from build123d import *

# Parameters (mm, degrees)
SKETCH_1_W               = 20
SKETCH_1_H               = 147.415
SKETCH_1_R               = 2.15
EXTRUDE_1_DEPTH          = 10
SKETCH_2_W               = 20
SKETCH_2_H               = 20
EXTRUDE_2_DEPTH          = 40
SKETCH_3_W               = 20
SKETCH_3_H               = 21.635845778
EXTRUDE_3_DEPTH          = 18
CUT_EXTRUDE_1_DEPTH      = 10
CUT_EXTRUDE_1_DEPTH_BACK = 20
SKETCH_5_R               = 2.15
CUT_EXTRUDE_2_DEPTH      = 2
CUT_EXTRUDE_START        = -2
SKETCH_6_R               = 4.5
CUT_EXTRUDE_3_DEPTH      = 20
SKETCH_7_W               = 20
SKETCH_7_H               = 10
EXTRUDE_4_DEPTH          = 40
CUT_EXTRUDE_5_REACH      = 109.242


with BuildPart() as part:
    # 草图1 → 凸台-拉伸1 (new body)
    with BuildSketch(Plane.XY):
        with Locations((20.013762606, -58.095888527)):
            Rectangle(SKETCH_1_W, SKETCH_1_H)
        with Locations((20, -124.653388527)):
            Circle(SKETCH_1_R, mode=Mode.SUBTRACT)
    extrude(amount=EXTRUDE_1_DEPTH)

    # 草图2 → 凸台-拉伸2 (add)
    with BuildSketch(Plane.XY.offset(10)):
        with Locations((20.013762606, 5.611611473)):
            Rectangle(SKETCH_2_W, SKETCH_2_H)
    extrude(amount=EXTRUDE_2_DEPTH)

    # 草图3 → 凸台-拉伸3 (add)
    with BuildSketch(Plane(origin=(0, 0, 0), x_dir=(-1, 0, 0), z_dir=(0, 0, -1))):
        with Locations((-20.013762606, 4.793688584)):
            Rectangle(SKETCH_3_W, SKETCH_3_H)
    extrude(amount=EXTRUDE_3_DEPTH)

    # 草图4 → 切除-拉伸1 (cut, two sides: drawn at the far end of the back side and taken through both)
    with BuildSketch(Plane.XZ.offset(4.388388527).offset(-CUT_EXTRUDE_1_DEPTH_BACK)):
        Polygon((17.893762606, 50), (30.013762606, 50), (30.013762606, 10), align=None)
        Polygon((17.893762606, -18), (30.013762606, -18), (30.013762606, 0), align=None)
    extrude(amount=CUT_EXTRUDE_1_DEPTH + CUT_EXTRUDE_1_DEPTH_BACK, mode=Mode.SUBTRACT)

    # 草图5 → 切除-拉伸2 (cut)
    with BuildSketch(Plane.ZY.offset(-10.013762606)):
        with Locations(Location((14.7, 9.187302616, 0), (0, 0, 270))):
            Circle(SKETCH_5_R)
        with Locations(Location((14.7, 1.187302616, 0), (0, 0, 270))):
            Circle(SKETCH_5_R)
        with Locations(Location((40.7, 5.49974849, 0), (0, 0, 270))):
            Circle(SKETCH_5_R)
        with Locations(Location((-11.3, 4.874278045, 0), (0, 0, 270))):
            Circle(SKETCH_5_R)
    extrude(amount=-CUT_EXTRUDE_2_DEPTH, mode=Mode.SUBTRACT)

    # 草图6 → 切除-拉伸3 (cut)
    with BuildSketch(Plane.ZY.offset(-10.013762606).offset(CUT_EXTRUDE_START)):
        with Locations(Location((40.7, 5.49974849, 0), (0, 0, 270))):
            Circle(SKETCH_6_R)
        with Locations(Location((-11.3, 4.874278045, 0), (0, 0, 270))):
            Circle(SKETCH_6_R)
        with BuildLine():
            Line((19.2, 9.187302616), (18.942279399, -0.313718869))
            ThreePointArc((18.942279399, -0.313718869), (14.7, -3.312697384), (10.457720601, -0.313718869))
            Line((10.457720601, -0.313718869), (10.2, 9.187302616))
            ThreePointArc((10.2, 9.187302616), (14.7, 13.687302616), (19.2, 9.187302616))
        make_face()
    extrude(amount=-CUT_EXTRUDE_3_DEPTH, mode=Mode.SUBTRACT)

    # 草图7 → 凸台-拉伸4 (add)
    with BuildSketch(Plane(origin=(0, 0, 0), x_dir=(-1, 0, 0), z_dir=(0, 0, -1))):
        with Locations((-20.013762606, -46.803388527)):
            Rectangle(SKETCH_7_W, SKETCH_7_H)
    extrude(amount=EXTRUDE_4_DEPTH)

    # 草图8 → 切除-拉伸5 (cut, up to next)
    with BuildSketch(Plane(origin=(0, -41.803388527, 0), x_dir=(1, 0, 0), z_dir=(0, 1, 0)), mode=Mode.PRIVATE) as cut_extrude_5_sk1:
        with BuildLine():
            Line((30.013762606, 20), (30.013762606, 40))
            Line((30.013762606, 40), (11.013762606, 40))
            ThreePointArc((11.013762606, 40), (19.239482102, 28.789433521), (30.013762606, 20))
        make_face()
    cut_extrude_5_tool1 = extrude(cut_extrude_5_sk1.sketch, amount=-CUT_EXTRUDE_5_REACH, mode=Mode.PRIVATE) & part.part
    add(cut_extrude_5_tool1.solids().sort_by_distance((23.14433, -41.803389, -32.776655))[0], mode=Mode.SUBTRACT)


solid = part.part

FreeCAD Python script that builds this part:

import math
import FreeCAD as App
import Part
import Sketcher


def add_polygon(sketch, points):
    """Adds a closed chain of lines whose ends are joined by coincident constraints."""
    first, n = sketch.GeometryCount, len(points)
    for a, b in zip(points, points[1:] + points[:1]):
        sketch.addGeometry(Part.LineSegment(App.Vector(*a, 0), App.Vector(*b, 0)), False)
    for i in range(n):
        sketch.addConstraint(Sketcher.Constraint("Coincident", first + i, 2, first + (i + 1) % n, 1))

doc = App.newDocument("Part")
params = doc.addObject("Spreadsheet::Sheet", "Params")
for row, (alias, value) in enumerate([
    ("sketch1_diameter", "4.3 mm"),
    ("sketch1_width", "20 mm"),
    ("pad1_length", "10 mm"),
    ("sketch2_width", "20 mm"),
    ("pad2_length", "40 mm"),
    ("sketch3_width", "20 mm"),
    ("pad3_length", "18 mm"),
    ("sketch4_height", "40 mm"),
    ("sketch4_height2", "18 mm"),
    ("sketch4_width", "12.12 mm"),
    ("sketch5_diameter", "4.3 mm"),
    ("pocket2_length", "2 mm"),
    ("sketch6_diameter", "9 mm"),
    ("pocket3_length", "20 mm"),
    ("sketch7_width", "20 mm"),
    ("sketch7_height", "10 mm"),
    ("pad4_length", "40 mm"),
    ("sketch8_radius", "55 mm"),
    ("sketch8_width", "19 mm"),
    ("sketch8_height", "20 mm"),
], start=1):
    params.set(f"A{row}", alias)
    params.set(f"B{row}", "=" + value)
    params.setAlias(f"B{row}", alias)

body = doc.addObject("PartDesign::Body", "Body")

sketch1 = body.newObject("Sketcher::SketchObject", "Sketch")
sketch1.AttachmentSupport = (doc.getObject("XY_Plane"), [""])
sketch1.MapMode = "FlatFace"
add_polygon(sketch1, [(10.013763, 15.611611), (10.013763, -131.803389), (30.013763, -131.803389), (30.013763, 15.611611)])
sketch1.addGeometry(Part.Circle(App.Vector(20, -124.653389, 0), App.Vector(0, 0, 1), 2.15), False)
sketch1.addConstraint([
    Sketcher.Constraint("Vertical", 0),
    Sketcher.Constraint("Horizontal", 1),
    Sketcher.Constraint("Vertical", 2),
    Sketcher.Constraint("Horizontal", 3),
    Sketcher.Constraint("Diameter", 4, 4.3),
    Sketcher.Constraint("DistanceX", 1, 1, 1, 2, 20.0),
    Sketcher.Constraint("DistanceX", -1, 1, 4, 3, 20.0),
    Sketcher.Constraint("DistanceY", 0, 2, 0, 1, 147.415),
    Sketcher.Constraint("DistanceY", 0, 2, 4, 3, 7.15),
    Sketcher.Constraint("DistanceY", 4, 3, -1, 1, 124.653389),
    Sketcher.Constraint("DistanceX", -1, 1, 0, 2, 10.013763),
])
sketch1.setExpression("Constraints[8]", "Params.sketch1_diameter")
sketch1.setExpression("Constraints[9]", "Params.sketch1_width")
pad1 = body.newObject("PartDesign::Pad", "Pad")
pad1.Profile = sketch1
pad1.setExpression("Length", "Params.pad1_length")

sketch2 = body.newObject("Sketcher::SketchObject", "Sketch001")
sketch2.AttachmentSupport = (doc.getObject("XY_Plane"), [""])
sketch2.MapMode = "FlatFace"
sketch2.AttachmentOffset = App.Placement(App.Vector(0, 0, 10), App.Rotation())
add_polygon(sketch2, [(10.013763, 15.611611), (10.013763, -4.388389), (30.013763, -4.388389), (30.013763, 15.611611)])
sketch2.addConstraint([
    Sketcher.Constraint("Vertical", 0),
    Sketcher.Constraint("Horizontal", 1),
    Sketcher.Constraint("Vertical", 2),
    Sketcher.Constraint("Horizontal", 3),
    Sketcher.Constraint("Equal", 3, 0),
    Sketcher.Constraint("DistanceX", 1, 1, 1, 2, 20.0),
    Sketcher.Constraint("DistanceY", 0, 2, -1, 1, 4.388389),
    Sketcher.Constraint("DistanceX", -1, 1, 0, 2, 10.013763),
])
sketch2.setExpression("Constraints[9]", "Params.sketch2_width")
pad2 = body.newObject("PartDesign::Pad", "Pad001")
pad2.Profile = sketch2
pad2.setExpression("Length", "Params.pad2_length")

sketch3 = body.newObject("Sketcher::SketchObject", "Sketch002")
sketch3.AttachmentSupport = (doc.getObject("XY_Plane"), [""])
sketch3.MapMode = "FlatFace"
add_polygon(sketch3, [(30.013763, 15.611611), (30.013763, -6.024234), (10.013763, -6.024234), (10.013763, 15.611611)])
sketch3.addConstraint([
    Sketcher.Constraint("Vertical", 0),
    Sketcher.Constraint("Horizontal", 1),
    Sketcher.Constraint("Vertical", 2),
    Sketcher.Constraint("Horizontal", 3),
    Sketcher.Constraint("DistanceX", 1, 2, 1, 1, 20.0),
    Sketcher.Constraint("DistanceY", 0, 2, 0, 1, 21.635846),
    Sketcher.Constraint("DistanceY", -1, 1, 2, 2, 15.611611),
    Sketcher.Constraint("DistanceX", -1, 1, 0, 2, 30.013763),
])
sketch3.setExpression("Constraints[8]", "Params.sketch3_width")
pad3 = body.newObject("PartDesign::Pad", "Pad002")
pad3.Profile = sketch3
pad3.setExpression("Length", "Params.pad3_length")
pad3.Reversed = True

sketch4 = body.newObject("Sketcher::SketchObject", "Sketch003")
sketch4.AttachmentSupport = (doc.getObject("XZ_Plane"), [""])
sketch4.MapMode = "FlatFace"
sketch4.AttachmentOffset = App.Placement(App.Vector(0, 0, 4.388389), App.Rotation())
add_polygon(sketch4, [(30.013763, 50), (17.893763, 50), (30.013763, 10)])
add_polygon(sketch4, [(17.893763, -18), (30.013763, -18), (30.013763, 0)])
sketch4.addConstraint([
    Sketcher.Constraint("Horizontal", 0),
    Sketcher.Constraint("Vertical", 2),
    Sketcher.Constraint("Horizontal", 3),
    Sketcher.Constraint("Vertical", 4),
    Sketcher.Constraint("PointOnObject", 4, 2, -1),
    Sketcher.Constraint("Vertical", 2, 2, 3, 2),
    Sketcher.Constraint("Vertical", 0, 2, 5, 2),
    Sketcher.Constraint("DistanceY", 2, 1, 2, 2, 40.0),
    Sketcher.Constraint("DistanceY", 4, 1, 4, 2, 18.0),
    Sketcher.Constraint("DistanceY", -1, 1, 0, 2, 50.0),
    Sketcher.Constraint("DistanceX", 0, 2, 0, 1, 12.12),
    Sketcher.Constraint("DistanceX", -1, 1, 0, 2, 17.893763),
])
sketch4.setExpression("Constraints[13]", "Params.sketch4_height")
sketch4.setExpression("Constraints[14]", "Params.sketch4_height2")
sketch4.setExpression("Constraints[16]", "Params.sketch4_width")
pocket1 = body.newObject("PartDesign::Pocket", "Pocket")
pocket1.Profile = sketch4
pocket1.Type = "ThroughAll"
pocket1.Midplane = True

sketch5 = body.newObject("Sketcher::SketchObject", "Sketch004")
sketch5.AttachmentSupport = (doc.getObject("YZ_Plane"), [""])
sketch5.MapMode = "FlatFace"
sketch5.AttachmentOffset = App.Placement(App.Vector(0, 0, 10.013763), App.Rotation())
sketch5.addGeometry([
    Part.Circle(App.Vector(9.187303, 14.7, 0), App.Vector(0, 0, 1), 2.15),
    Part.Circle(App.Vector(1.187303, 14.7, 0), App.Vector(0, 0, 1), 2.15),
    Part.Circle(App.Vector(5.499748, 40.7, 0), App.Vector(0, 0, 1), 2.15),
    Part.Circle(App.Vector(4.874278, -11.3, 0), App.Vector(0, 0, 1), 2.15),
], False)
sketch5.addConstraint([
    Sketcher.Constraint("Equal", 0, 1),
    Sketcher.Constraint("Equal", 1, 2),
    Sketcher.Constraint("Equal", 2, 3),
    Sketcher.Constraint("Horizontal", 0, 3, 1, 3),
    Sketcher.Constraint("Diameter", 0, 4.3),
    Sketcher.Constraint("DistanceX", 1, 3, 0, 3, 8.0),
    Sketcher.Constraint("DistanceY", 0, 3, 2, 3, 26.0),
    Sketcher.Constraint("DistanceY", 3, 3, 1, 3, 26.0),
    Sketcher.Constraint("DistanceY", -1, 1, 0, 3, 14.7),
    Sketcher.Constraint("DistanceX", -1, 1, 2, 3, 5.499748),
    Sketcher.Constraint("DistanceX", -1, 1, 3, 3, 4.874278),
    Sketcher.Constraint("DistanceX", -1, 1, 0, 3, 9.187303),
])
sketch5.setExpression("Constraints[4]", "Params.sketch5_diameter")
pocket2 = body.newObject("PartDesign::Pocket", "Pocket001")
pocket2.Profile = sketch5
pocket2.setExpression("Length", "Params.pocket2_length")
pocket2.Reversed = True

sketch6 = body.newObject("Sketcher::SketchObject", "Sketch005")
sketch6.AttachmentSupport = (doc.getObject("YZ_Plane"), [""])
sketch6.MapMode = "FlatFace"
sketch6.AttachmentOffset = App.Placement(App.Vector(0, 0, 12.013763), App.Rotation())
sketch6.addGeometry([
    Part.Circle(App.Vector(5.499748, 40.7, 0), App.Vector(0, 0, 1), 4.5),
    Part.Circle(App.Vector(4.874278, -11.3, 0), App.Vector(0, 0, 1), 4.5),
    Part.LineSegment(App.Vector(-0.313719, 18.942279, 0), App.Vector(9.187303, 19.2, 0)),
    Part.ArcOfCircle(Part.Circle(App.Vector(9.187303, 14.7, 0), App.Vector(0, 0, 1), 4.5), math.radians(-90), math.radians(90)),
    Part.LineSegment(App.Vector(9.187303, 10.2, 0), App.Vector(-0.313719, 10.457721, 0)),
    Part.ArcOfCircle(Part.Circle(App.Vector(1.187303, 14.7, 0), App.Vector(0, 0, 1), 4.5), math.radians(109.485016), math.radians(250.514984)),
], False)
sketch6.addConstraint([
    Sketcher.Constraint("Coincident", 2, 2, 3, 2),
    Sketcher.Constraint("Coincident", 3, 1, 4, 1),
    Sketcher.Constraint("Coincident", 4, 2, 5, 2),
    Sketcher.Constraint("Coincident", 5, 1, 2, 1),
    Sketcher.Constraint("Equal", 0, 1),
    Sketcher.Constraint("Equal", 1, 3),
    Sketcher.Constraint("Equal", 3, 5),
    Sketcher.Constraint("Horizontal", 3, 3, 5, 3),
    Sketcher.Constraint("Vertical", 3, 3, 2, 2),
    Sketcher.Constraint("Vertical", 2, 2, 3, 1),
    Sketcher.Constraint("Vertical", 4, 2, 5, 1),
    Sketcher.Constraint("Diameter", 0, 9.0),
    Sketcher.Constraint("DistanceY", 1, 3, 0, 3, 52.0),
    Sketcher.Constraint("DistanceY", 3, 3, 0, 3, 26.0),
    Sketcher.Constraint("DistanceX", 5, 3, 3, 3, 8.0),
    Sketcher.Constraint("DistanceY", -1, 1, 0, 3, 40.7),
    Sketcher.Constraint("DistanceX", -1, 1, 0, 3, 5.499748),
    Sketcher.Constraint("DistanceX", -1, 1, 1, 3, 4.874278),
    Sketcher.Constraint("DistanceX", 4, 2, -1, 1, 0.313719),
    Sketcher.Constraint("DistanceY", -1, 1, 4, 2, 10.457721),
])
sketch6.setExpression("Constraints[11]", "Params.sketch6_diameter")
pocket3 = body.newObject("PartDesign::Pocket", "Pocket002")
pocket3.Profile = sketch6
pocket3.setExpression("Length", "Params.pocket3_length")
pocket3.Reversed = True

sketch7 = body.newObject("Sketcher::SketchObject", "Sketch006")
sketch7.AttachmentSupport = (doc.getObject("XY_Plane"), [""])
sketch7.MapMode = "FlatFace"
add_polygon(sketch7, [(30.013763, -41.803389), (30.013763, -51.803389), (10.013763, -51.803389), (10.013763, -41.803389)])
sketch7.addConstraint([
    Sketcher.Constraint("Vertical", 0),
    Sketcher.Constraint("Horizontal", 1),
    Sketcher.Constraint("Vertical", 2),
    Sketcher.Constraint("Horizontal", 3),
    Sketcher.Constraint("DistanceX", 1, 2, 1, 1, 20.0),
    Sketcher.Constraint("DistanceY", 0, 2, 0, 1, 10.0),
    Sketcher.Constraint("DistanceY", 0, 2, -1, 1, 51.803389),
    Sketcher.Constraint("DistanceX", -1, 1, 0, 2, 30.013763),
])
sketch7.setExpression("Constraints[8]", "Params.sketch7_width")
sketch7.setExpression("Constraints[9]", "Params.sketch7_height")
pad4 = body.newObject("PartDesign::Pad", "Pad003")
pad4.Profile = sketch7
pad4.setExpression("Length", "Params.pad4_length")
pad4.Reversed = True

sketch8 = body.newObject("Sketcher::SketchObject", "Sketch007")
sketch8.AttachmentSupport = (doc.getObject("XZ_Plane"), [""])
sketch8.MapMode = "FlatFace"
sketch8.AttachmentOffset = App.Placement(App.Vector(0, 0, 41.803389), App.Rotation())
sketch8.addGeometry([
    Part.LineSegment(App.Vector(30.013763, -20, 0), App.Vector(30.013763, -40, 0)),
    Part.LineSegment(App.Vector(30.013763, -40, 0), App.Vector(11.013763, -40, 0)),
    Part.ArcOfCircle(Part.Circle(App.Vector(59.114451, -66.670654, 0), App.Vector(0, 0, 1), 55), math.radians(121.944897), math.radians(150.992705)),
], False)
sketch8.addConstraint([
    Sketcher.Constraint("Coincident", 0, 2, 1, 1),
    Sketcher.Constraint("Coincident", 1, 2, 2, 2),
    Sketcher.Constraint("Coincident", 2, 1, 0, 1),
    Sketcher.Constraint("Vertical", 0),
    Sketcher.Constraint("Horizontal", 1),
    Sketcher.Constraint("Radius", 2, 55.0),
    Sketcher.Constraint("DistanceX", 1, 2, 1, 1, 19.0),
    Sketcher.Constraint("DistanceY", 0, 2, 0, 1, 20.0),
    Sketcher.Constraint("DistanceY", 0, 2, -1, 1, 40.0),
    Sketcher.Constraint("DistanceX", -1, 1, 2, 3, 59.114451),
])
sketch8.setExpression("Constraints[5]", "Params.sketch8_radius")
sketch8.setExpression("Constraints[6]", "Params.sketch8_width")
sketch8.setExpression("Constraints[7]", "Params.sketch8_height")
pocket4 = body.newObject("PartDesign::Pocket", "Pocket003")
pocket4.Profile = sketch8
pocket4.Type = "UpToFirst"
pocket4.Reversed = True

doc.recompute()
